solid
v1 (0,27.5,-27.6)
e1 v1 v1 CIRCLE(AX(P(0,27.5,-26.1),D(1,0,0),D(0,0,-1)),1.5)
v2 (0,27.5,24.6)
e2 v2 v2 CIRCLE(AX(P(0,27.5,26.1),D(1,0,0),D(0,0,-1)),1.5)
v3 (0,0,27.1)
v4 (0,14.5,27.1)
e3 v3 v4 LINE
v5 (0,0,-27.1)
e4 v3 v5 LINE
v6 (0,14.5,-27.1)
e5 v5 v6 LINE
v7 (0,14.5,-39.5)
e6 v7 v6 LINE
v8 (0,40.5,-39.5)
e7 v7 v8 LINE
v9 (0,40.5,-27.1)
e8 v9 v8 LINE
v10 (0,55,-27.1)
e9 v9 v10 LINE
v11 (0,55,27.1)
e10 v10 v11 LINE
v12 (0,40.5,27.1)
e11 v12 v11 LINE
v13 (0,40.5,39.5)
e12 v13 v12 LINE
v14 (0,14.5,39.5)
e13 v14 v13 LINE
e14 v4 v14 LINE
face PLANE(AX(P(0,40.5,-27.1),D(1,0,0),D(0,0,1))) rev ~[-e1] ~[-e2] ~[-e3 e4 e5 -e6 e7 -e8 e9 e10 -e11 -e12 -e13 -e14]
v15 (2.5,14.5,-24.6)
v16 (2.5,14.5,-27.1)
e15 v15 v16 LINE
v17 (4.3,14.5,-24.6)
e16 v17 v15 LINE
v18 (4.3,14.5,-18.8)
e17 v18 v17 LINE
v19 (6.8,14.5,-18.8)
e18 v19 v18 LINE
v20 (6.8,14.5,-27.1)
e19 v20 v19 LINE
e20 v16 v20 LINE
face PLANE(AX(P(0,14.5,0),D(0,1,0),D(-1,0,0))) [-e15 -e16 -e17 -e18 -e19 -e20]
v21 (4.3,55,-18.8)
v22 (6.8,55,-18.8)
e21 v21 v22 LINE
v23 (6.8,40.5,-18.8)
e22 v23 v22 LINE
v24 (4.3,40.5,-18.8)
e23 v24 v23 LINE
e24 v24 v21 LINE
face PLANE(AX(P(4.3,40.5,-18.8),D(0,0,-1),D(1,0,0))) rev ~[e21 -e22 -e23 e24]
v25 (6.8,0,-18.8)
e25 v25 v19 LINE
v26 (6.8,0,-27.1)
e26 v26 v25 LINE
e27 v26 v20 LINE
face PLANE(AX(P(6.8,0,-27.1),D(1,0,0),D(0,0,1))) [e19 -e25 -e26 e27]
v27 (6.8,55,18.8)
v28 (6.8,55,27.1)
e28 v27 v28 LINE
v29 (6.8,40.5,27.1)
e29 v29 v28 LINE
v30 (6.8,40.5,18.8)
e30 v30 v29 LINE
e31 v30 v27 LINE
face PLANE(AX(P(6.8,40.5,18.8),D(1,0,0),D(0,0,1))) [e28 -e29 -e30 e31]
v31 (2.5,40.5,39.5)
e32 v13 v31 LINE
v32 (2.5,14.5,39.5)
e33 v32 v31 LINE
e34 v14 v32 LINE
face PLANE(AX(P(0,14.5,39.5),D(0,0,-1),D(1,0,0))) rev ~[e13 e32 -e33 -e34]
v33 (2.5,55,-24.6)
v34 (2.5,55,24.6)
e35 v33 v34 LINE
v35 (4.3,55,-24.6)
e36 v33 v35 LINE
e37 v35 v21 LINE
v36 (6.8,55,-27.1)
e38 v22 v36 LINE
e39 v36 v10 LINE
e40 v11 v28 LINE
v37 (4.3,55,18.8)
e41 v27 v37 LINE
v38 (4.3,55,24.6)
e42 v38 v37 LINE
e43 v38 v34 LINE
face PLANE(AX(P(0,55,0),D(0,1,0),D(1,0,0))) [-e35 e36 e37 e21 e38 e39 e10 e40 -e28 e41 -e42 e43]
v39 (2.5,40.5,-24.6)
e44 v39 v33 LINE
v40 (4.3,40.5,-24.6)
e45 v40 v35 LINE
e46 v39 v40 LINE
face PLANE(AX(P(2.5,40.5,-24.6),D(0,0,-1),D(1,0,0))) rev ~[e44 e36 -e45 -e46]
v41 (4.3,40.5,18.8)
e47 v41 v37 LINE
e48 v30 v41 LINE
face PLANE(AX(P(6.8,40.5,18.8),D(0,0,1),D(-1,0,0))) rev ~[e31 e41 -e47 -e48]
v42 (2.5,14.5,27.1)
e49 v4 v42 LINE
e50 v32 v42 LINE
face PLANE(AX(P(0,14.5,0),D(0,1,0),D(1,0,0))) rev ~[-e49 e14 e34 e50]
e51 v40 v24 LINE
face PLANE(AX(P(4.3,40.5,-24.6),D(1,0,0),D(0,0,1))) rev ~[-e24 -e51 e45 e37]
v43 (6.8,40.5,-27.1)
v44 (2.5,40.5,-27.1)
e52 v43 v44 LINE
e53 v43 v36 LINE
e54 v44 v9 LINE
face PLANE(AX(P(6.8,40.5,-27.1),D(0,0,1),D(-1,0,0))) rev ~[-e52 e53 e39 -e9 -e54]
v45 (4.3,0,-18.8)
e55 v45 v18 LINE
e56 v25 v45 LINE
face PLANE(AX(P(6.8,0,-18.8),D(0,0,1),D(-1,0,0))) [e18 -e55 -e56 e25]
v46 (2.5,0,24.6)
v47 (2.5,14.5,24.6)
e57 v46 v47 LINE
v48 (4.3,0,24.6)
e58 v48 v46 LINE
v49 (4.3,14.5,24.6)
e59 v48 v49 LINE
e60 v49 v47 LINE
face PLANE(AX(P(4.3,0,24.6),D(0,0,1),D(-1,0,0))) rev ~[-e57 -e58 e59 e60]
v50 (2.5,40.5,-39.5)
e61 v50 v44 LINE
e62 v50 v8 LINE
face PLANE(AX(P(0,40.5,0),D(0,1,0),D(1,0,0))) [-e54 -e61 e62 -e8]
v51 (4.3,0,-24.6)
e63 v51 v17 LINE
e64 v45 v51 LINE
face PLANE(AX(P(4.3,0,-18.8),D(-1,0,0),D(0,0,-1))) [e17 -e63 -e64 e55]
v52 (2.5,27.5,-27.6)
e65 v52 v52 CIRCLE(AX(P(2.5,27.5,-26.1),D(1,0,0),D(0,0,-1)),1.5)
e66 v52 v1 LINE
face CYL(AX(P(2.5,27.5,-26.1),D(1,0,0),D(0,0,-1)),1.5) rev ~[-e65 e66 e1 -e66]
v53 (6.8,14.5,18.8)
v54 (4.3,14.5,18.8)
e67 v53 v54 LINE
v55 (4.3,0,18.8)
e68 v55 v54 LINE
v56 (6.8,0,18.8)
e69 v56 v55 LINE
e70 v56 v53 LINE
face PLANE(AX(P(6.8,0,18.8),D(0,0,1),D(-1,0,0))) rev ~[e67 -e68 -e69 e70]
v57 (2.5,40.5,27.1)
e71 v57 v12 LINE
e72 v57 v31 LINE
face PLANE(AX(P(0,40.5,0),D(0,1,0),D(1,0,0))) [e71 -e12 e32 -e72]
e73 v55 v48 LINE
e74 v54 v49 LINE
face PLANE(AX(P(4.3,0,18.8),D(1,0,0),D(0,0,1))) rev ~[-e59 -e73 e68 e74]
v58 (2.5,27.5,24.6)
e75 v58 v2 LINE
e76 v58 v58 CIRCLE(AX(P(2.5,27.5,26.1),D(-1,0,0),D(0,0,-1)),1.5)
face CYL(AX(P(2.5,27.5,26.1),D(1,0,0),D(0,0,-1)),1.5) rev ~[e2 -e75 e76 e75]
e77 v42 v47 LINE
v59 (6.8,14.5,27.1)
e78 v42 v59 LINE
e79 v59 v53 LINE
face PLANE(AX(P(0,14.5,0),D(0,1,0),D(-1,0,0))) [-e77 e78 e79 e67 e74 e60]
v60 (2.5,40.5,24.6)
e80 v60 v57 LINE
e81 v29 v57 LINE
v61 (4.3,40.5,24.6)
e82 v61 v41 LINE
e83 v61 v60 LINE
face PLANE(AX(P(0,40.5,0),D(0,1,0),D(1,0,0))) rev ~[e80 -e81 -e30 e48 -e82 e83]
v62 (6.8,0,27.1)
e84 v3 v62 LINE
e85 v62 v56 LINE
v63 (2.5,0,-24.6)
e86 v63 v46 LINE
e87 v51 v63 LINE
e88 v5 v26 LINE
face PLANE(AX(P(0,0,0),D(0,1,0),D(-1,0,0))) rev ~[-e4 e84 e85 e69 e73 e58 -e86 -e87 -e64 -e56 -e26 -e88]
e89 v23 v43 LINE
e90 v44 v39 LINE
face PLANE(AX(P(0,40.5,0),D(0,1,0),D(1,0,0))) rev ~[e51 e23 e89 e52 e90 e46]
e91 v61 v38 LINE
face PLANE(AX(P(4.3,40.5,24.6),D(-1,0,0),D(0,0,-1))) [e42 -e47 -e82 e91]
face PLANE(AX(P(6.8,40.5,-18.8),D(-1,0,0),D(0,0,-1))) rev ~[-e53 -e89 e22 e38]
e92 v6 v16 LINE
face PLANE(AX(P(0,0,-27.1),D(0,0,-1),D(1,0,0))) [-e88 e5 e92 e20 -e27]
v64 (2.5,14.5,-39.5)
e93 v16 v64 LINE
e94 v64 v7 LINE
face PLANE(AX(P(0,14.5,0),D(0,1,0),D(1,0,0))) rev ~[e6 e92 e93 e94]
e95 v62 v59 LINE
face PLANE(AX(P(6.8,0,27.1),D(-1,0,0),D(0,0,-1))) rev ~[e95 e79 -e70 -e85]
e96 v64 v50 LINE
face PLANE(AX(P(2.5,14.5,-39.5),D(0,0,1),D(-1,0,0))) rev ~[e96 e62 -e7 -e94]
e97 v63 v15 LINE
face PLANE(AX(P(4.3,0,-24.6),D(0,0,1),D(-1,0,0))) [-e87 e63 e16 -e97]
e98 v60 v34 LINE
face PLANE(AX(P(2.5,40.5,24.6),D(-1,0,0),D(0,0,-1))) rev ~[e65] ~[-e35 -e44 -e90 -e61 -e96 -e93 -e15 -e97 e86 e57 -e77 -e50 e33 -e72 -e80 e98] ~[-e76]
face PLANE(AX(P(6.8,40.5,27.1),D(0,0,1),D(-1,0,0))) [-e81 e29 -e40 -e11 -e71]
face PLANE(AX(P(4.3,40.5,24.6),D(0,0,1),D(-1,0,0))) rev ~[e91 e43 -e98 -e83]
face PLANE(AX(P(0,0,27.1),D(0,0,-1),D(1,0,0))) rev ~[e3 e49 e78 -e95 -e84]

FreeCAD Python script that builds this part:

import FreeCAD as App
import Part
import Sketcher
Q = App.Units.Quantity


def add_polygon(sketch, points):
    """Adds a closed chain of lines whose ends are joined by coincident constraints."""
    first, n = sketch.GeometryCount, len(points)
    for a, b in zip(points, points[1:] + points[:1]):
        sketch.addGeometry(Part.LineSegment(App.Vector(*a, 0), App.Vector(*b, 0)), False)
    for i in range(n):
        sketch.addConstraint(Sketcher.Constraint("Coincident", first + i, 2, first + (i + 1) % n, 1))

doc = App.newDocument("Part")
params = doc.addObject("Spreadsheet::Sheet", "Params")
for row, (alias, value) in enumerate([
    ("sketch1_width", "6.8 mm"),
    ("sketch1_width2", "2.5 mm"),
    ("sketch1_width3", "1.8 mm"),
    ("sketch1_height", "54.2 mm"),
    ("sketch1_height2", "8.3 mm"),
    ("pad1_length", "14.5 mm"),
    ("sketch2_width", "2.5 mm"),
    ("pad2_length", "26 mm"),
    ("sketch3_width", "1.8 mm"),
    ("sketch3_width2", "2.5 mm"),
    ("sketch3_width3", "6.8 mm"),
    ("sketch3_height", "49.2 mm"),
    ("sketch3_height2", "5.8 mm"),
    ("pad3_length", "14.5 mm"),
    ("sketch4_diameter", "3 mm"),
    ("pocket1_length", "4.5 mm"),
], start=1):
    params.set(f"A{row}", alias)
    params.set(f"B{row}", "=" + value)
    params.setAlias(f"B{row}", alias)

body = doc.addObject("PartDesign::Body", "Body")

# Sketch on XZ plane
sketch1 = doc.addObject("Sketcher::SketchObject", "Sketch")
body.addObject(sketch1)
sketch1.AttachmentSupport = (doc.XZ_Plane, [""])
sketch1.MapMode = "FlatFace"
add_polygon(sketch1, [(0, -27.1), (0, 27.1), (6.8, 27.1), (6.8, 18.8), (4.3, 18.8), (4.3, 24.6), (2.5, 24.6), (2.5, -24.6), (4.3, -24.6), (4.3, -18.8), (6.8, -18.8), (6.8, -27.1)])  # lines 0-11
sketch1.addConstraint([
    Sketcher.Constraint("Vertical", 0),
    Sketcher.Constraint("Horizontal", 1),
    Sketcher.Constraint("Vertical", 2),
    Sketcher.Constraint("Horizontal", 3),
    Sketcher.Constraint("Vertical", 4),
    Sketcher.Constraint("Horizontal", 5),
    Sketcher.Constraint("Vertical", 6),
    Sketcher.Constraint("Horizontal", 7),
    Sketcher.Constraint("Vertical", 8),
    Sketcher.Constraint("Horizontal", 9),
    Sketcher.Constraint("Vertical", 10),
    Sketcher.Constraint("Horizontal", 11),
    Sketcher.Constraint("Symmetric", 0, 2, 11, 2, -1, 1),
    Sketcher.Constraint("Symmetric", 4, 2, 7, 2, -1),
    Sketcher.Constraint("Symmetric", 2, 2, 9, 2, -1),
    Sketcher.Constraint("DistanceX", 1, 1, 1, 2, Q("6.8 mm")),
    Sketcher.Constraint("DistanceX", 3, 2, 3, 1, Q("2.5 mm")),
    Sketcher.Constraint("DistanceX", 5, 2, 5, 1, Q("1.8 mm")),
    Sketcher.Constraint("DistanceY", 0, 1, 0, 2, Q("54.2 mm")),
    Sketcher.Constraint("DistanceY", 2, 2, 2, 1, Q("8.3 mm")),
    Sketcher.Constraint("DistanceY", 4, 1, 4, 2, Q("5.8 mm")),
])
sketch1.setExpression("Constraints[27]", "Params.sketch1_width")
sketch1.setExpression("Constraints[28]", "Params.sketch1_width2")
sketch1.setExpression("Constraints[29]", "Params.sketch1_width3")
sketch1.setExpression("Constraints[30]", "Params.sketch1_height")
sketch1.setExpression("Constraints[31]", "Params.sketch1_height2")
pad1 = doc.addObject("PartDesign::Pad", "Pad")
body.addObject(pad1)
pad1.Profile = sketch1
pad1.setExpression("Length", "Params.pad1_length")
pad1.Reversed = True

# Sketch on XZ plane
sketch2 = doc.addObject("Sketcher::SketchObject", "Sketch001")
body.addObject(sketch2)
sketch2.AttachmentSupport = (doc.XZ_Plane, [""])
sketch2.MapMode = "FlatFace"
sketch2.AttachmentOffset = App.Placement(App.Vector(0, 0, -14.5), App.Rotation())
add_polygon(sketch2, [(2.5, 39.5), (2.5, -39.5), (0, -39.5), (0, 39.5)])  # lines 0-3
sketch2.addConstraint([
    Sketcher.Constraint("Vertical", 0),
    Sketcher.Constraint("Horizontal", 1),
    Sketcher.Constraint("Vertical", 2),
    Sketcher.Constraint("Horizontal", 3),
    Sketcher.Constraint("Symmetric", 1, 2, 2, 2, -1, 1),
    Sketcher.Constraint("DistanceY", 0, 2, -1, 1, Q("39.5 mm")),
    Sketcher.Constraint("DistanceX", 1, 2, 1, 1, Q("2.5 mm")),
])
sketch2.setExpression("Constraints[10]", "Params.sketch2_width")
pad2 = doc.addObject("PartDesign::Pad", "Pad001")
body.addObject(pad2)
pad2.Profile = sketch2
pad2.setExpression("Length", "Params.pad2_length")
pad2.Reversed = True

# Sketch on XZ plane
sketch3 = doc.addObject("Sketcher::SketchObject", "Sketch002")
body.addObject(sketch3)
sketch3.AttachmentSupport = (doc.XZ_Plane, [""])
sketch3.MapMode = "FlatFace"
sketch3.AttachmentOffset = App.Placement(App.Vector(0, 0, -40.5), App.Rotation())
add_polygon(sketch3, [(4.3, 24.6), (2.5, 24.6), (2.5, -24.6), (4.3, -24.6), (4.3, -18.8), (6.8, -18.8), (6.8, -27.1), (0, -27.1), (0, 27.1), (6.8, 27.1), (6.8, 18.8), (4.3, 18.8)])  # lines 0-11
sketch3.addConstraint([
    Sketcher.Constraint("Horizontal", 0),
    Sketcher.Constraint("Vertical", 1),
    Sketcher.Constraint("Horizontal", 2),
    Sketcher.Constraint("Vertical", 3),
    Sketcher.Constraint("Horizontal", 4),
    Sketcher.Constraint("Vertical", 5),
    Sketcher.Constraint("Horizontal", 6),
    Sketcher.Constraint("Vertical", 7),
    Sketcher.Constraint("Horizontal", 8),
    Sketcher.Constraint("Vertical", 9),
    Sketcher.Constraint("Horizontal", 10),
    Sketcher.Constraint("Vertical", 11),
    Sketcher.Constraint("Symmetric", 6, 2, 7, 2, -1, 1),
    Sketcher.Constraint("Symmetric", 4, 2, 9, 2, -1),
    Sketcher.Constraint("Symmetric", 2, 2, 11, 2, -1),
    Sketcher.Constraint("DistanceX", 0, 2, 0, 1, Q("1.8 mm")),
    Sketcher.Constraint("DistanceX", 4, 1, 4, 2, Q("2.5 mm")),
    Sketcher.Constraint("DistanceX", 6, 2, 6, 1, Q("6.8 mm")),
    Sketcher.Constraint("DistanceY", 1, 2, 1, 1, Q("49.2 mm")),
    Sketcher.Constraint("DistanceY", 3, 1, 3, 2, Q("5.8 mm")),
    Sketcher.Constraint("DistanceY", 5, 2, 5, 1, Q("8.3 mm")),
])
sketch3.setExpression("Constraints[27]", "Params.sketch3_width")
sketch3.setExpression("Constraints[28]", "Params.sketch3_width2")
sketch3.setExpression("Constraints[29]", "Params.sketch3_width3")
sketch3.setExpression("Constraints[30]", "Params.sketch3_height")
sketch3.setExpression("Constraints[31]", "Params.sketch3_height2")
pad3 = doc.addObject("PartDesign::Pad", "Pad002")
body.addObject(pad3)
pad3.Profile = sketch3
pad3.setExpression("Length", "Params.pad3_length")
pad3.Reversed = True

# Sketch on YZ plane
sketch4 = doc.addObject("Sketcher::SketchObject", "Sketch003")
body.addObject(sketch4)
sketch4.AttachmentSupport = (doc.YZ_Plane, [""])
sketch4.MapMode = "FlatFace"
sketch4.AttachmentOffset = App.Placement(App.Vector(0, 0, 2.5), App.Rotation())
sketch4.addGeometry([
    Part.Circle(App.Vector(27.5, -26.1, 0), App.Vector(0, 0, 1), 1.5),
    Part.Circle(App.Vector(27.5, 26.1, 0), App.Vector(0, 0, 1), 1.5),
], False)
sketch4.addConstraint([
    Sketcher.Constraint("Equal", 0, 1),
    Sketcher.Constraint("Symmetric", 0, 3, 1, 3, -1),
    Sketcher.Constraint("Diameter", 0, Q("3 mm")),
    Sketcher.Constraint("DistanceX", -1, 1, 0, 3, Q("27.5 mm")),
    Sketcher.Constraint("DistanceY", 0, 3, -1, 1, Q("26.1 mm")),
])
sketch4.setExpression("Constraints[2]", "Params.sketch4_diameter")
pocket1 = doc.addObject("PartDesign::Pocket", "Pocket")
body.addObject(pocket1)
pocket1.Profile = sketch4
pocket1.setExpression("Length", "Params.pocket1_length")

doc.recompute()
